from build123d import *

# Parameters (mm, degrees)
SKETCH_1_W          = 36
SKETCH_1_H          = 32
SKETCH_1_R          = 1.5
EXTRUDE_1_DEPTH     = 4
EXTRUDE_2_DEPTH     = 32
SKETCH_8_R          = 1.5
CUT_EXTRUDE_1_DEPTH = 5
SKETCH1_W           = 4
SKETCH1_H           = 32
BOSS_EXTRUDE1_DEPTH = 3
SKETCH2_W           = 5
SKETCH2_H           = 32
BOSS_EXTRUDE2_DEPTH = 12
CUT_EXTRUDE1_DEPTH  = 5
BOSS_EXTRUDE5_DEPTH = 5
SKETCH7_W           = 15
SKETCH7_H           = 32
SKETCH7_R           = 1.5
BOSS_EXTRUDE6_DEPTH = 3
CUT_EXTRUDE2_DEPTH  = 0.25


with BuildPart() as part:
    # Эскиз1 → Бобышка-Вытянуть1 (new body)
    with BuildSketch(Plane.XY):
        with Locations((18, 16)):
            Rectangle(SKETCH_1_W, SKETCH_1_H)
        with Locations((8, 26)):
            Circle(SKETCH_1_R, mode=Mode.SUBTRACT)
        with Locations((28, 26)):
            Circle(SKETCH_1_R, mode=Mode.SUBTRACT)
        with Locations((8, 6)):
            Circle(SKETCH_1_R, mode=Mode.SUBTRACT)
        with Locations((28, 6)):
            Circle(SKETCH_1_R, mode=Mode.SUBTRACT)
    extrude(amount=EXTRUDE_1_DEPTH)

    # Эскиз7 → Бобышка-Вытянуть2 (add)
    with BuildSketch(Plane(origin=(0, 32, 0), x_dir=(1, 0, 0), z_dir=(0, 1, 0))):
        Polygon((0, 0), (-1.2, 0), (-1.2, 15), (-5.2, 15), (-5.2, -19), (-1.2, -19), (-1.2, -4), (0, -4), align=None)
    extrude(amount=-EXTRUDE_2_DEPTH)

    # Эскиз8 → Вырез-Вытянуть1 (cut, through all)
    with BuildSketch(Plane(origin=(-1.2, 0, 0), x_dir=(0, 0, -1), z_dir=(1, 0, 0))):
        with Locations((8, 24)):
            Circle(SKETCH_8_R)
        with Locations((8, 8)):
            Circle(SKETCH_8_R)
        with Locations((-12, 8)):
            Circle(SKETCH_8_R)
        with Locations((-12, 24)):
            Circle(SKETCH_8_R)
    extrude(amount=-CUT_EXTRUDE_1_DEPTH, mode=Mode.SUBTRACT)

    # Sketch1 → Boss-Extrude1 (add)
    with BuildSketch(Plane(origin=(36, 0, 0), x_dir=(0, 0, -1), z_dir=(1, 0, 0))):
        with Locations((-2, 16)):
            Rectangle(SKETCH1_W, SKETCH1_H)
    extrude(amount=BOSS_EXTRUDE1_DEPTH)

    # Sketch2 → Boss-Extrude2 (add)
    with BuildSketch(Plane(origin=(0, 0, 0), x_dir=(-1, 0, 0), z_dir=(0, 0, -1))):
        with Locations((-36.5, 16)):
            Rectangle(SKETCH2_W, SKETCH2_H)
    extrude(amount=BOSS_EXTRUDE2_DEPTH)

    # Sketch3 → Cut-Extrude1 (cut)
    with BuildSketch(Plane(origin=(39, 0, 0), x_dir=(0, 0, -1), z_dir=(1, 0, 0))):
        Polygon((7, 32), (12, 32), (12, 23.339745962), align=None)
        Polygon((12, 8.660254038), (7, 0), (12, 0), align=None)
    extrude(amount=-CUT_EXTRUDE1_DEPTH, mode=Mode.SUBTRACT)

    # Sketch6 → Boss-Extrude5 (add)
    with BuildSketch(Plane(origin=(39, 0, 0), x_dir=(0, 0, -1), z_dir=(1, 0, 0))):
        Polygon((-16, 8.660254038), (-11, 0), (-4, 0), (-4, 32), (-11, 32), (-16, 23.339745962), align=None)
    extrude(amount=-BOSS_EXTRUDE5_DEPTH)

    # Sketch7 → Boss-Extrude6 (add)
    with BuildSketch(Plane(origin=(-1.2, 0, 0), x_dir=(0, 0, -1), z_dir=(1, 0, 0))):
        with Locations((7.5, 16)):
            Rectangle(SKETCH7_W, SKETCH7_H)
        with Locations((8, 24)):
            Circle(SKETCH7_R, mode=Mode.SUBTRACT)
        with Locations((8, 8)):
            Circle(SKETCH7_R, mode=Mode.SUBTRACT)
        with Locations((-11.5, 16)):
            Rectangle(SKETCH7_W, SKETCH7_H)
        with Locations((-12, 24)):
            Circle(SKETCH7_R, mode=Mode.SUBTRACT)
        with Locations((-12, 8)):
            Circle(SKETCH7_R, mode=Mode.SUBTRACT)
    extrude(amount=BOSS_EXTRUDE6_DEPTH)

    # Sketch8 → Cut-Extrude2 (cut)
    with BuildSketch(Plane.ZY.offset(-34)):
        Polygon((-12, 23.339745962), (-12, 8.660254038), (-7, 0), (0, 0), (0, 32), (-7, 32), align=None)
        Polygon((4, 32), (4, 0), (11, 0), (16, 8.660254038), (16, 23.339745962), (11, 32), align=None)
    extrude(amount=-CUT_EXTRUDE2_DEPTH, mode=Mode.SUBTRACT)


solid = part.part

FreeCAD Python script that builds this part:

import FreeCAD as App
import Part
import Sketcher
Q = App.Units.Quantity

doc = App.newDocument("Part")
body = doc.addObject("PartDesign::Body", "Body")

sketch1 = doc.addObject("Sketcher::SketchObject", "Sketch")
body.addObject(sketch1)
sketch1.AttachmentSupport = (doc.XY_Plane, [""])
sketch1.MapMode = "FlatFace"
sketch1.addGeometry(Part.LineSegment(App.Vector(0, 32, 0), App.Vector(0, 0, 0)), False)
sketch1.addGeometry(Part.LineSegment(App.Vector(0, 0, 0), App.Vector(36, 0, 0)), False)
sketch1.addGeometry(Part.LineSegment(App.Vector(36, 0, 0), App.Vector(36, 32, 0)), False)
sketch1.addGeometry(Part.LineSegment(App.Vector(36, 32, 0), App.Vector(0, 32, 0)), False)
sketch1.addGeometry(Part.Circle(App.Vector(8, 6, 0), App.Vector(0, 0, 1), 1.5), False)
sketch1.addGeometry(Part.Circle(App.Vector(28, 6, 0), App.Vector(0, 0, 1), 1.5), False)
sketch1.addGeometry(Part.Circle(App.Vector(8, 26, 0), App.Vector(0, 0, 1), 1.5), False)
sketch1.addGeometry(Part.Circle(App.Vector(28, 26, 0), App.Vector(0, 0, 1), 1.5), False)
sketch1.addConstraint(Sketcher.Constraint("Coincident", 0, 2, 1, 1))
sketch1.addConstraint(Sketcher.Constraint("Coincident", 1, 2, 2, 1))
sketch1.addConstraint(Sketcher.Constraint("Coincident", 2, 2, 3, 1))
sketch1.addConstraint(Sketcher.Constraint("Coincident", 3, 2, 0, 1))
sketch1.addConstraint(Sketcher.Constraint("Vertical", 0))
sketch1.addConstraint(Sketcher.Constraint("Horizontal", 1))
sketch1.addConstraint(Sketcher.Constraint("Vertical", 2))
sketch1.addConstraint(Sketcher.Constraint("Horizontal", 3))
sketch1.addConstraint(Sketcher.Constraint("Coincident", 0, 2, -1, 1))
sketch1.addConstraint(Sketcher.Constraint("Equal", 4, 5))
sketch1.addConstraint(Sketcher.Constraint("Equal", 5, 6))
sketch1.addConstraint(Sketcher.Constraint("Equal", 6, 7))
sketch1.addConstraint(Sketcher.Constraint("Horizontal", 4, 3, 5, 3))
sketch1.addConstraint(Sketcher.Constraint("Horizontal", 6, 3, 7, 3))
sketch1.addConstraint(Sketcher.Constraint("Vertical", 4, 3, 6, 3))
sketch1.addConstraint(Sketcher.Constraint("Vertical", 5, 3, 7, 3))
sketch1.addConstraint(Sketcher.Constraint("Diameter", 4, 3.0))
sketch1.addConstraint(Sketcher.Constraint("DistanceX", 1, 1, 1, 2, 36.0))
sketch1.addConstraint(Sketcher.Constraint("DistanceY", 0, 2, 0, 1, 32.0))
sketch1.addConstraint(Sketcher.Constraint("DistanceX", -1, 1, 4, 3, 8.0))
sketch1.addConstraint(Sketcher.Constraint("DistanceY", -1, 1, 4, 3, 6.0))
sketch1.addConstraint(Sketcher.Constraint("DistanceX", -1, 1, 5, 3, 28.0))
sketch1.addConstraint(Sketcher.Constraint("DistanceY", -1, 1, 6, 3, 26.0))
pad1 = doc.addObject("PartDesign::Pad", "Pad")
body.addObject(pad1)
pad1.Profile = sketch1
pad1.Length = 4

sketch2 = doc.addObject("Sketcher::SketchObject", "Sketch001")
body.addObject(sketch2)
sketch2.AttachmentSupport = (doc.XZ_Plane, [""])
sketch2.MapMode = "FlatFace"
sketch2.AttachmentOffset = App.Placement(App.Vector(0, 0, -32), App.Rotation())
sketch2.addGeometry(Part.LineSegment(App.Vector(0, 0, 0), App.Vector(-1.2, 0, 0)), False)
sketch2.addGeometry(Part.LineSegment(App.Vector(-1.2, 0, 0), App.Vector(-1.2, -15, 0)), False)
sketch2.addGeometry(Part.LineSegment(App.Vector(-1.2, -15, 0), App.Vector(-5.2, -15, 0)), False)
sketch2.addGeometry(Part.LineSegment(App.Vector(-5.2, -15, 0), App.Vector(-5.2, 19, 0)), False)
sketch2.addGeometry(Part.LineSegment(App.Vector(-5.2, 19, 0), App.Vector(-1.2, 19, 0)), False)
sketch2.addGeometry(Part.LineSegment(App.Vector(-1.2, 19, 0), App.Vector(-1.2, 4, 0)), False)
sketch2.addGeometry(Part.LineSegment(App.Vector(-1.2, 4, 0), App.Vector(0, 4, 0)), False)
sketch2.addGeometry(Part.LineSegment(App.Vector(0, 4, 0), App.Vector(0, 0, 0)), False)
sketch2.addConstraint(Sketcher.Constraint("Coincident", 0, 2, 1, 1))
sketch2.addConstraint(Sketcher.Constraint("Coincident", 1, 2, 2, 1))
sketch2.addConstraint(Sketcher.Constraint("Coincident", 2, 2, 3, 1))
sketch2.addConstraint(Sketcher.Constraint("Coincident", 3, 2, 4, 1))
sketch2.addConstraint(Sketcher.Constraint("Coincident", 4, 2, 5, 1))
sketch2.addConstraint(Sketcher.Constraint("Coincident", 5, 2, 6, 1))
sketch2.addConstraint(Sketcher.Constraint("Coincident", 6, 2, 7, 1))
sketch2.addConstraint(Sketcher.Constraint("Coincident", 7, 2, 0, 1))
sketch2.addConstraint(Sketcher.Constraint("Horizontal", 0))
sketch2.addConstraint(Sketcher.Constraint("Vertical", 1))
sketch2.addConstraint(Sketcher.Constraint("Horizontal", 2))
sketch2.addConstraint(Sketcher.Constraint("Vertical", 3))
sketch2.addConstraint(Sketcher.Constraint("Horizontal", 4))
sketch2.addConstraint(Sketcher.Constraint("Vertical", 5))
sketch2.addConstraint(Sketcher.Constraint("Horizontal", 6))
sketch2.addConstraint(Sketcher.Constraint("Vertical", 7))
sketch2.addConstraint(Sketcher.Constraint("Coincident", 7, 2, -1, 1))
sketch2.addConstraint(Sketcher.Constraint("Vertical", 1, 2, 4, 2))
sketch2.addConstraint(Sketcher.Constraint("Equal", 1, 5))
sketch2.addConstraint(Sketcher.Constraint("Equal", 4, 7))
sketch2.addConstraint(Sketcher.Constraint("DistanceX", 2, 2, 2, 1, 4.0))
sketch2.addConstraint(Sketcher.Constraint("DistanceY", 1, 2, 1, 1, 15.0))
sketch2.addConstraint(Sketcher.Constraint("DistanceX", 0, 2, 0, 1, 1.2))
pad2 = doc.addObject("PartDesign::Pad", "Pad001")
body.addObject(pad2)
pad2.Profile = sketch2
pad2.Length = 32

sketch3 = doc.addObject("Sketcher::SketchObject", "Sketch002")
body.addObject(sketch3)
sketch3.AttachmentSupport = (doc.YZ_Plane, [""])
sketch3.MapMode = "FlatFace"
sketch3.AttachmentOffset = App.Placement(App.Vector(0, 0, -1.2), App.Rotation())
sketch3.addGeometry(Part.Circle(App.Vector(24, -8, 0), App.Vector(0, 0, 1), 1.5), False)
sketch3.addGeometry(Part.Circle(App.Vector(8, -8, 0), App.Vector(0, 0, 1), 1.5), False)
sketch3.addGeometry(Part.Circle(App.Vector(8, 12, 0), App.Vector(0, 0, 1), 1.5), False)
sketch3.addGeometry(Part.Circle(App.Vector(24, 12, 0), App.Vector(0, 0, 1), 1.5), False)
sketch3.addConstraint(Sketcher.Constraint("Equal", 0, 1))
sketch3.addConstraint(Sketcher.Constraint("Equal", 1, 2))
sketch3.addConstraint(Sketcher.Constraint("Equal", 2, 3))
sketch3.addConstraint(Sketcher.Constraint("Horizontal", 0, 3, 1, 3))
sketch3.addConstraint(Sketcher.Constraint("Horizontal", 2, 3, 3, 3))
sketch3.addConstraint(Sketcher.Constraint("Vertical", 1, 3, 2, 3))
sketch3.addConstraint(Sketcher.Constraint("Vertical", 0, 3, 3, 3))
sketch3.addConstraint(Sketcher.Constraint("Diameter", 0, 3.0))
sketch3.addConstraint(Sketcher.Constraint("DistanceX", -1, 1, 0, 3, 24.0))
sketch3.addConstraint(Sketcher.Constraint("DistanceY", 0, 3, -1, 1, 8.0))
sketch3.addConstraint(Sketcher.Constraint("DistanceX", -1, 1, 1, 3, 8.0))
sketch3.addConstraint(Sketcher.Constraint("DistanceY", -1, 1, 2, 3, 12.0))
pocket1 = doc.addObject("PartDesign::Pocket", "Pocket")
body.addObject(pocket1)
pocket1.Profile = sketch3
pocket1.Type = "ThroughAll"

sketch4 = doc.addObject("Sketcher::SketchObject", "Sketch003")
body.addObject(sketch4)
sketch4.AttachmentSupport = (doc.YZ_Plane, [""])
sketch4.MapMode = "FlatFace"
sketch4.AttachmentOffset = App.Placement(App.Vector(0, 0, 36), App.Rotation())
sketch4.addGeometry(Part.LineSegment(App.Vector(32, 4, 0), App.Vector(0, 4, 0)), False)
sketch4.addGeometry(Part.LineSegment(App.Vector(0, 4, 0), App.Vector(0, 0, 0)), False)
sketch4.addGeometry(Part.LineSegment(App.Vector(0, 0, 0), App.Vector(32, 0, 0)), False)
sketch4.addGeometry(Part.LineSegment(App.Vector(32, 0, 0), App.Vector(32, 4, 0)), False)
sketch4.addConstraint(Sketcher.Constraint("Coincident", 0, 2, 1, 1))
sketch4.addConstraint(Sketcher.Constraint("Coincident", 1, 2, 2, 1))
sketch4.addConstraint(Sketcher.Constraint("Coincident", 2, 2, 3, 1))
sketch4.addConstraint(Sketcher.Constraint("Coincident", 3, 2, 0, 1))
sketch4.addConstraint(Sketcher.Constraint("Horizontal", 0))
sketch4.addConstraint(Sketcher.Constraint("Vertical", 1))
sketch4.addConstraint(Sketcher.Constraint("Horizontal", 2))
sketch4.addConstraint(Sketcher.Constraint("Vertical", 3))
sketch4.addConstraint(Sketcher.Constraint("Coincident", 1, 2, -1, 1))
sketch4.addConstraint(Sketcher.Constraint("DistanceX", 0, 2, 0, 1, 32.0))
sketch4.addConstraint(Sketcher.Constraint("DistanceY", 1, 2, 1, 1, 4.0))
pad3 = doc.addObject("PartDesign::Pad", "Pad002")
body.addObject(pad3)
pad3.Profile = sketch4
pad3.Length = 3

sketch5 = doc.addObject("Sketcher::SketchObject", "Sketch004")
body.addObject(sketch5)
sketch5.AttachmentSupport = (doc.XY_Plane, [""])
sketch5.MapMode = "FlatFace"
sketch5.addGeometry(Part.LineSegment(App.Vector(39, 32, 0), App.Vector(39, 0, 0)), False)
sketch5.addGeometry(Part.LineSegment(App.Vector(39, 0, 0), App.Vector(34, 0, 0)), False)
sketch5.addGeometry(Part.LineSegment(App.Vector(34, 0, 0), App.Vector(34, 32, 0)), False)
sketch5.addGeometry(Part.LineSegment(App.Vector(34, 32, 0), App.Vector(39, 32, 0)), False)
sketch5.addConstraint(Sketcher.Constraint("Coincident", 0, 2, 1, 1))
sketch5.addConstraint(Sketcher.Constraint("Coincident", 1, 2, 2, 1))
sketch5.addConstraint(Sketcher.Constraint("Coincident", 2, 2, 3, 1))
sketch5.addConstraint(Sketcher.Constraint("Coincident", 3, 2, 0, 1))
sketch5.addConstraint(Sketcher.Constraint("Vertical", 0))
sketch5.addConstraint(Sketcher.Constraint("Horizontal", 1))
sketch5.addConstraint(Sketcher.Constraint("Vertical", 2))
sketch5.addConstraint(Sketcher.Constraint("Horizontal", 3))
sketch5.addConstraint(Sketcher.Constraint("PointOnObject", 0, 2, -1))
sketch5.addConstraint(Sketcher.Constraint("DistanceX", 1, 2, 1, 1, 5.0))
sketch5.addConstraint(Sketcher.Constraint("DistanceY", 0, 2, 0, 1, 32.0))
sketch5.addConstraint(Sketcher.Constraint("DistanceX", -1, 1, 0, 2, 39.0))
pad4 = doc.addObject("PartDesign::Pad", "Pad003")
body.addObject(pad4)
pad4.Profile = sketch5
pad4.Length = 12
pad4.Reversed = True

sketch6 = doc.addObject("Sketcher::SketchObject", "Sketch005")
body.addObject(sketch6)
sketch6.AttachmentSupport = (doc.YZ_Plane, [""])
sketch6.MapMode = "FlatFace"
sketch6.AttachmentOffset = App.Placement(App.Vector(0, 0, 39), App.Rotation())
sketch6.addGeometry(Part.LineSegment(App.Vector(32, -12, 0), App.Vector(32, -7, 0)), False)
sketch6.addGeometry(Part.LineSegment(App.Vector(32, -7, 0), App.Vector(23, -12, 0)), False)
sketch6.addGeometry(Part.LineSegment(App.Vector(23, -12, 0), App.Vector(32, -12, 0)), False)
sketch6.addGeometry(Part.LineSegment(App.Vector(9, -12, 0), App.Vector(0, -7, 0)), False)
sketch6.addGeometry(Part.LineSegment(App.Vector(0, -7, 0), App.Vector(0, -12, 0)), False)
sketch6.addGeometry(Part.LineSegment(App.Vector(0, -12, 0), App.Vector(9, -12, 0)), False)
sketch6.addConstraint(Sketcher.Constraint("Coincident", 0, 2, 1, 1))
sketch6.addConstraint(Sketcher.Constraint("Coincident", 1, 2, 2, 1))
sketch6.addConstraint(Sketcher.Constraint("Coincident", 2, 2, 0, 1))
sketch6.addConstraint(Sketcher.Constraint("Coincident", 3, 2, 4, 1))
sketch6.addConstraint(Sketcher.Constraint("Coincident", 4, 2, 5, 1))
sketch6.addConstraint(Sketcher.Constraint("Coincident", 5, 2, 3, 1))
sketch6.addConstraint(Sketcher.Constraint("Vertical", 0))
sketch6.addConstraint(Sketcher.Constraint("Horizontal", 2))
sketch6.addConstraint(Sketcher.Constraint("Vertical", 4))
sketch6.addConstraint(Sketcher.Constraint("Horizontal", 5))
sketch6.addConstraint(Sketcher.Constraint("PointOnObject", 3, 2, -2))
sketch6.addConstraint(Sketcher.Constraint("Horizontal", 0, 2, 3, 2))
sketch6.addConstraint(Sketcher.Constraint("Horizontal", 2, 2, 4, 2))
sketch6.addConstraint(Sketcher.Constraint("Equal", 2, 5))
sketch6.addConstraint(Sketcher.Constraint("DistanceY", 0, 1, 0, 2, 5.0))
sketch6.addConstraint(Sketcher.Constraint("Angle", 1, Q("-150 deg")))
sketch6.addConstraint(Sketcher.Constraint("DistanceX", -1, 1, 0, 2, 32.0))
sketch6.addConstraint(Sketcher.Constraint("DistanceY", 0, 2, -1, 1, 7.0))
pocket2 = doc.addObject("PartDesign::Pocket", "Pocket001")
body.addObject(pocket2)
pocket2.Profile = sketch6
pocket2.Length = 5

sketch7 = doc.addObject("Sketcher::SketchObject", "Sketch006")
body.addObject(sketch7)
sketch7.AttachmentSupport = (doc.YZ_Plane, [""])
sketch7.MapMode = "FlatFace"
sketch7.AttachmentOffset = App.Placement(App.Vector(0, 0, 39), App.Rotation())
sketch7.addGeometry(Part.LineSegment(App.Vector(9, 16, 0), App.Vector(0, 11, 0)), False)
sketch7.addGeometry(Part.LineSegment(App.Vector(0, 11, 0), App.Vector(0, 4, 0)), False)
sketch7.addGeometry(Part.LineSegment(App.Vector(0, 4, 0), App.Vector(32, 4, 0)), False)
sketch7.addGeometry(Part.LineSegment(App.Vector(32, 4, 0), App.Vector(32, 11, 0)), False)
sketch7.addGeometry(Part.LineSegment(App.Vector(32, 11, 0), App.Vector(23, 16, 0)), False)
sketch7.addGeometry(Part.LineSegment(App.Vector(23, 16, 0), App.Vector(9, 16, 0)), False)
sketch7.addConstraint(Sketcher.Constraint("Coincident", 0, 2, 1, 1))
sketch7.addConstraint(Sketcher.Constraint("Coincident", 1, 2, 2, 1))
sketch7.addConstraint(Sketcher.Constraint("Coincident", 2, 2, 3, 1))
sketch7.addConstraint(Sketcher.Constraint("Coincident", 3, 2, 4, 1))
sketch7.addConstraint(Sketcher.Constraint("Coincident", 4, 2, 5, 1))
sketch7.addConstraint(Sketcher.Constraint("Coincident", 5, 2, 0, 1))
sketch7.addConstraint(Sketcher.Constraint("Vertical", 1))
sketch7.addConstraint(Sketcher.Constraint("Horizontal", 2))
sketch7.addConstraint(Sketcher.Constraint("Vertical", 3))
sketch7.addConstraint(Sketcher.Constraint("Horizontal", 5))
sketch7.addConstraint(Sketcher.Constraint("PointOnObject", 0, 2, -2))
sketch7.addConstraint(Sketcher.Constraint("Horizontal", 0, 2, 3, 2))
sketch7.addConstraint(Sketcher.Constraint("Equal", 0, 4))
sketch7.addConstraint(Sketcher.Constraint("DistanceX", 2, 1, 2, 2, 32.0))
sketch7.addConstraint(Sketcher.Constraint("DistanceY", 1, 2, 1, 1, 7.0))
sketch7.addConstraint(Sketcher.Constraint("Angle", 0, Q("-150 deg")))
sketch7.addConstraint(Sketcher.Constraint("Distance", 0, 10.0))
sketch7.addConstraint(Sketcher.Constraint("DistanceY", -1, 1, 0, 2, 11.0))
pad5 = doc.addObject("PartDesign::Pad", "Pad004")
body.addObject(pad5)
pad5.Profile = sketch7
pad5.Length = 5
pad5.Reversed = True

sketch8 = doc.addObject("Sketcher::SketchObject", "Sketch007")
body.addObject(sketch8)
sketch8.AttachmentSupport = (doc.YZ_Plane, [""])
sketch8.MapMode = "FlatFace"
sketch8.AttachmentOffset = App.Placement(App.Vector(0, 0, -1.2), App.Rotation())
sketch8.addGeometry(Part.LineSegment(App.Vector(32, 0, 0), App.Vector(0, 0, 0)), False)
sketch8.addGeometry(Part.LineSegment(App.Vector(0, 0, 0), App.Vector(0, -15, 0)), False)
sketch8.addGeometry(Part.LineSegment(App.Vector(0, -15, 0), App.Vector(32, -15, 0)), False)
sketch8.addGeometry(Part.LineSegment(App.Vector(32, -15, 0), App.Vector(32, 0, 0)), False)
sketch8.addGeometry(Part.Circle(App.Vector(8, -8, 0), App.Vector(0, 0, 1), 1.5), False)
sketch8.addGeometry(Part.Circle(App.Vector(24, -8, 0), App.Vector(0, 0, 1), 1.5), False)
sketch8.addGeometry(Part.LineSegment(App.Vector(32, 19, 0), App.Vector(0, 19, 0)), False)
sketch8.addGeometry(Part.LineSegment(App.Vector(0, 19, 0), App.Vector(0, 4, 0)), False)
sketch8.addGeometry(Part.LineSegment(App.Vector(0, 4, 0), App.Vector(32, 4, 0)), False)
sketch8.addGeometry(Part.LineSegment(App.Vector(32, 4, 0), App.Vector(32, 19, 0)), False)
sketch8.addGeometry(Part.Circle(App.Vector(8, 12, 0), App.Vector(0, 0, 1), 1.5), False)
sketch8.addGeometry(Part.Circle(App.Vector(24, 12, 0), App.Vector(0, 0, 1), 1.5), False)
sketch8.addConstraint(Sketcher.Constraint("Coincident", 0, 2, 1, 1))
sketch8.addConstraint(Sketcher.Constraint("Coincident", 1, 2, 2, 1))
sketch8.addConstraint(Sketcher.Constraint("Coincident", 2, 2, 3, 1))
sketch8.addConstraint(Sketcher.Constraint("Coincident", 3, 2, 0, 1))
sketch8.addConstraint(Sketcher.Constraint("Coincident", 6, 2, 7, 1))
sketch8.addConstraint(Sketcher.Constraint("Coincident", 7, 2, 8, 1))
sketch8.addConstraint(Sketcher.Constraint("Coincident", 8, 2, 9, 1))
sketch8.addConstraint(Sketcher.Constraint("Coincident", 9, 2, 6, 1))
sketch8.addConstraint(Sketcher.Constraint("Horizontal", 0))
sketch8.addConstraint(Sketcher.Constraint("Vertical", 1))
sketch8.addConstraint(Sketcher.Constraint("Horizontal", 2))
sketch8.addConstraint(Sketcher.Constraint("Vertical", 3))
sketch8.addConstraint(Sketcher.Constraint("Horizontal", 6))
sketch8.addConstraint(Sketcher.Constraint("Vertical", 7))
sketch8.addConstraint(Sketcher.Constraint("Horizontal", 8))
sketch8.addConstraint(Sketcher.Constraint("Vertical", 9))
sketch8.addConstraint(Sketcher.Constraint("Coincident", 0, 2, -1, 1))
sketch8.addConstraint(Sketcher.Constraint("Equal", 4, 5))
sketch8.addConstraint(Sketcher.Constraint("Equal", 5, 10))
sketch8.addConstraint(Sketcher.Constraint("Equal", 10, 11))
sketch8.addConstraint(Sketcher.Constraint("PointOnObject", 6, 2, -2))
sketch8.addConstraint(Sketcher.Constraint("Horizontal", 4, 3, 5, 3))
sketch8.addConstraint(Sketcher.Constraint("Horizontal", 10, 3, 11, 3))
sketch8.addConstraint(Sketcher.Constraint("Vertical", 4, 3, 10, 3))
sketch8.addConstraint(Sketcher.Constraint("Vertical", 5, 3, 11, 3))
sketch8.addConstraint(Sketcher.Constraint("Vertical", 3, 2, 8, 2))
sketch8.addConstraint(Sketcher.Constraint("Equal", 3, 7))
sketch8.addConstraint(Sketcher.Constraint("Diameter", 4, 3.0))
sketch8.addConstraint(Sketcher.Constraint("DistanceX", 0, 2, 0, 1, 32.0))
sketch8.addConstraint(Sketcher.Constraint("DistanceY", 1, 2, 1, 1, 15.0))
sketch8.addConstraint(Sketcher.Constraint("DistanceX", -1, 1, 4, 3, 8.0))
sketch8.addConstraint(Sketcher.Constraint("DistanceY", 4, 3, -1, 1, 8.0))
sketch8.addConstraint(Sketcher.Constraint("DistanceX", -1, 1, 5, 3, 24.0))
sketch8.addConstraint(Sketcher.Constraint("DistanceY", -1, 1, 10, 3, 12.0))
sketch8.addConstraint(Sketcher.Constraint("DistanceY", -1, 1, 6, 2, 19.0))
pad6 = doc.addObject("PartDesign::Pad", "Pad005")
body.addObject(pad6)
pad6.Profile = sketch8
pad6.Length = 3

sketch9 = doc.addObject("Sketcher::SketchObject", "Sketch008")
body.addObject(sketch9)
sketch9.AttachmentSupport = (doc.YZ_Plane, [""])
sketch9.MapMode = "FlatFace"
sketch9.AttachmentOffset = App.Placement(App.Vector(0, 0, 34), App.Rotation())
sketch9.addGeometry(Part.LineSegment(App.Vector(23, -12, 0), App.Vector(9, -12, 0)), False)
sketch9.addGeometry(Part.LineSegment(App.Vector(9, -12, 0), App.Vector(0, -7, 0)), False)
sketch9.addGeometry(Part.LineSegment(App.Vector(0, -7, 0), App.Vector(0, 0, 0)), False)
sketch9.addGeometry(Part.LineSegment(App.Vector(0, 0, 0), App.Vector(32, 0, 0)), False)
sketch9.addGeometry(Part.LineSegment(App.Vector(32, 0, 0), App.Vector(32, -7, 0)), False)
sketch9.addGeometry(Part.LineSegment(App.Vector(32, -7, 0), App.Vector(23, -12, 0)), False)
sketch9.addGeometry(Part.LineSegment(App.Vector(32, 4, 0), App.Vector(0, 4, 0)), False)
sketch9.addGeometry(Part.LineSegment(App.Vector(0, 4, 0), App.Vector(0, 11, 0)), False)
sketch9.addGeometry(Part.LineSegment(App.Vector(0, 11, 0), App.Vector(9, 16, 0)), False)
sketch9.addGeometry(Part.LineSegment(App.Vector(9, 16, 0), App.Vector(23, 16, 0)), False)
sketch9.addGeometry(Part.LineSegment(App.Vector(23, 16, 0), App.Vector(32, 11, 0)), False)
sketch9.addGeometry(Part.LineSegment(App.Vector(32, 11, 0), App.Vector(32, 4, 0)), False)
sketch9.addConstraint(Sketcher.Constraint("Coincident", 0, 2, 1, 1))
sketch9.addConstraint(Sketcher.Constraint("Coincident", 1, 2, 2, 1))
sketch9.addConstraint(Sketcher.Constraint("Coincident", 2, 2, 3, 1))
sketch9.addConstraint(Sketcher.Constraint("Coincident", 3, 2, 4, 1))
sketch9.addConstraint(Sketcher.Constraint("Coincident", 4, 2, 5, 1))
sketch9.addConstraint(Sketcher.Constraint("Coincident", 5, 2, 0, 1))
sketch9.addConstraint(Sketcher.Constraint("Coincident", 6, 2, 7, 1))
sketch9.addConstraint(Sketcher.Constraint("Coincident", 7, 2, 8, 1))
sketch9.addConstraint(Sketcher.Constraint("Coincident", 8, 2, 9, 1))
sketch9.addConstraint(Sketcher.Constraint("Coincident", 9, 2, 10, 1))
sketch9.addConstraint(Sketcher.Constraint("Coincident", 10, 2, 11, 1))
sketch9.addConstraint(Sketcher.Constraint("Coincident", 11, 2, 6, 1))
sketch9.addConstraint(Sketcher.Constraint("Horizontal", 0))
sketch9.addConstraint(Sketcher.Constraint("Vertical", 2))
sketch9.addConstraint(Sketcher.Constraint("Horizontal", 3))
sketch9.addConstraint(Sketcher.Constraint("Vertical", 4))
sketch9.addConstraint(Sketcher.Constraint("Horizontal", 6))
sketch9.addConstraint(Sketcher.Constraint("Vertical", 7))
sketch9.addConstraint(Sketcher.Constraint("Horizontal", 9))
sketch9.addConstraint(Sketcher.Constraint("Vertical", 11))
sketch9.addConstraint(Sketcher.Constraint("Coincident", 2, 2, -1, 1))
sketch9.addConstraint(Sketcher.Constraint("PointOnObject", 6, 2, -2))
sketch9.addConstraint(Sketcher.Constraint("Parallel", 5, 8))
sketch9.addConstraint(Sketcher.Constraint("Parallel", 1, 10))
sketch9.addConstraint(Sketcher.Constraint("Horizontal", 1, 2, 4, 2))
sketch9.addConstraint(Sketcher.Constraint("Horizontal", 7, 2, 10, 2))
sketch9.addConstraint(Sketcher.Constraint("Vertical", 0, 2, 8, 2))
sketch9.addConstraint(Sketcher.Constraint("Vertical", 5, 2, 9, 2))
sketch9.addConstraint(Sketcher.Constraint("Vertical", 4, 2, 10, 2))
sketch9.addConstraint(Sketcher.Constraint("Equal", 4, 7))
sketch9.addConstraint(Sketcher.Constraint("DistanceX", 3, 1, 3, 2, 32.0))
sketch9.addConstraint(Sketcher.Constraint("DistanceY", 2, 1, 2, 2, 7.0))
sketch9.addConstraint(Sketcher.Constraint("Angle", 1, Q("150 deg")))
sketch9.addConstraint(Sketcher.Constraint("Distance", 1, 10.0))
sketch9.addConstraint(Sketcher.Constraint("DistanceY", -1, 1, 6, 2, 4.0))
pocket3 = doc.addObject("PartDesign::Pocket", "Pocket002")
body.addObject(pocket3)
pocket3.Profile = sketch9
pocket3.Length = 0.25
pocket3.Reversed = True

doc.recompute()
